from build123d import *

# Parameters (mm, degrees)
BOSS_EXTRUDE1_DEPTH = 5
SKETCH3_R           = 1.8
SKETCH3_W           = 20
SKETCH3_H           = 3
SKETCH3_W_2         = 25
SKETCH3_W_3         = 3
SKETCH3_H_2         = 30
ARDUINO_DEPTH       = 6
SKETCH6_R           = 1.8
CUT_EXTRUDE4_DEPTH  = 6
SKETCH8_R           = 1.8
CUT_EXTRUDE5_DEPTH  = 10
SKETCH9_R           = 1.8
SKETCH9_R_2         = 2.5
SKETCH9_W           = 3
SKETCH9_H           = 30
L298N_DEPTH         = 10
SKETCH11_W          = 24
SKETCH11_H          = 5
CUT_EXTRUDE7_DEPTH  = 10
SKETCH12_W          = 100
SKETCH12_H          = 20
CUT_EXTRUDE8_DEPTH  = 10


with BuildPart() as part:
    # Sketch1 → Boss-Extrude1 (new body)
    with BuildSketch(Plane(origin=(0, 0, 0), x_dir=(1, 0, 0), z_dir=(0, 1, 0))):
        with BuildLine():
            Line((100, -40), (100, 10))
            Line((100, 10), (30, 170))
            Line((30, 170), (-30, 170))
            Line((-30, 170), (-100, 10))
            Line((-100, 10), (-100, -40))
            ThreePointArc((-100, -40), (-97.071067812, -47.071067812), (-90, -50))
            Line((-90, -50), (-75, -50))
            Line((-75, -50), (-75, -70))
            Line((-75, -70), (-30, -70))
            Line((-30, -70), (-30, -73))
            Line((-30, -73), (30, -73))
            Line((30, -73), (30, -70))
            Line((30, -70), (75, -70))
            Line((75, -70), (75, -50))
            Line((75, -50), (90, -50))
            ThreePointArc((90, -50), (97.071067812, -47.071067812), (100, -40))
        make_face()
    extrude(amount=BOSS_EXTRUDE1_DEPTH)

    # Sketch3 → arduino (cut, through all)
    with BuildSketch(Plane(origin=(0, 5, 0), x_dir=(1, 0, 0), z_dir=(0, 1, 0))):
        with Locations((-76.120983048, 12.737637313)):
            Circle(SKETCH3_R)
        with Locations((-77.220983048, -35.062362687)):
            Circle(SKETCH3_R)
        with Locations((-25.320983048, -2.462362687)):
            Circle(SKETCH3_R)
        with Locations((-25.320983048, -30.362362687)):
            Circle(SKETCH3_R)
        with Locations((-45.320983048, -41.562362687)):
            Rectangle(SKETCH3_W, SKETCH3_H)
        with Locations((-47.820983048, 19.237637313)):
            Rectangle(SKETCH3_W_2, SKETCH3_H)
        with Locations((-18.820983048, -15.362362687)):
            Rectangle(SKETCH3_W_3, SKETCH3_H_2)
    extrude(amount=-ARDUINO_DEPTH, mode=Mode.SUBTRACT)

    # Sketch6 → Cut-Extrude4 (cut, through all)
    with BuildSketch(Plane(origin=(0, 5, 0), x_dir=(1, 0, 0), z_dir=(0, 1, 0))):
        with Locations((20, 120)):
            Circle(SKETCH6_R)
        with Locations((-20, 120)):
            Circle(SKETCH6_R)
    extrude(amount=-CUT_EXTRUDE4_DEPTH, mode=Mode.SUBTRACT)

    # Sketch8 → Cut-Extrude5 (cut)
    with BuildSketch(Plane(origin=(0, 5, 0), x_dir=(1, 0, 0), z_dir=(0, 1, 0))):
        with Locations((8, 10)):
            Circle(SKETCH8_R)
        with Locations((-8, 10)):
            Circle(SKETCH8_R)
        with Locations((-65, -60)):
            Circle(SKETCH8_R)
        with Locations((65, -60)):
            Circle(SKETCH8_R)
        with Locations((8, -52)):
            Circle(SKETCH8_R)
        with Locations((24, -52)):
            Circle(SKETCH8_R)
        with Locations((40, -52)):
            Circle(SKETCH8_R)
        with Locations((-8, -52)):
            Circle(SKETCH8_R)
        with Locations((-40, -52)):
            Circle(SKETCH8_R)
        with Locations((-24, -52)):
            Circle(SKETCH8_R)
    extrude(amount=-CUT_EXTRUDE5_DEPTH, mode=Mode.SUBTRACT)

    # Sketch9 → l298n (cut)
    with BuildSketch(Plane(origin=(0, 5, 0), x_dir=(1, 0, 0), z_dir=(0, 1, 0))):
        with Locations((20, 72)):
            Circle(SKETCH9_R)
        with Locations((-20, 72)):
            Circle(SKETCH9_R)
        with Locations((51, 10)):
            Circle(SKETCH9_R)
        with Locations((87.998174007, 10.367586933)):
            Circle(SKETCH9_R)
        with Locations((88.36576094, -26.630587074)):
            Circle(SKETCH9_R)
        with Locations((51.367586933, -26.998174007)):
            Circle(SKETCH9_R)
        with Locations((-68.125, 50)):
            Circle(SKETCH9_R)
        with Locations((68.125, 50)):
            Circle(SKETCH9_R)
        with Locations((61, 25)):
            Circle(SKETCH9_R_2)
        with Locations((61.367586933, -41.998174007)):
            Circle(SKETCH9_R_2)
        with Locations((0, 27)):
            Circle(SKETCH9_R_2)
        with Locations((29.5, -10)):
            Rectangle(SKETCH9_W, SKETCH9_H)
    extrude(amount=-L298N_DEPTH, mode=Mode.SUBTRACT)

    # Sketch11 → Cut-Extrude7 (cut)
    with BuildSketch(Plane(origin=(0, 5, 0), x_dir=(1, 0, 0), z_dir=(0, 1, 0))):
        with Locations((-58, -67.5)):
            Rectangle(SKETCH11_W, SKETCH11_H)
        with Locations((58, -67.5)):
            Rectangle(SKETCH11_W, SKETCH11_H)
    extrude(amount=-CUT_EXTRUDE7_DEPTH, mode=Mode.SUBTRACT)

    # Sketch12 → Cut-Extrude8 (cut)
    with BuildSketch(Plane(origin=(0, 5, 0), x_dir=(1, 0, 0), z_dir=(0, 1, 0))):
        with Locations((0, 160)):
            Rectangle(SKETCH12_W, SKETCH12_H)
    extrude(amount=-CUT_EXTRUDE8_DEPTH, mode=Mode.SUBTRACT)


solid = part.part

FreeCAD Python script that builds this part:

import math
import FreeCAD as App
import Part
import Sketcher

V = App.Vector
Q = App.Units.Quantity

doc = App.newDocument("Part")
params = doc.addObject("Spreadsheet::Sheet", "Params")
for row, (alias, value) in enumerate([
    ("sketch1_radius", "10 mm"),
    ("sketch1_width", "60 mm"),
    ("sketch1_width2", "15 mm"),
    ("sketch1_width3", "45 mm"),
    ("sketch1_height", "50 mm"),
    ("pad1_length", "5 mm"),
    ("sketch2_diameter", "3.6 mm"),
    ("sketch2_width", "20 mm"),
    ("sketch2_width2", "25 mm"),
    ("sketch2_width3", "3 mm"),
    ("sketch2_height", "30 mm"),
    ("sketch3_diameter", "3.6 mm"),
    ("sketch4_diameter", "3.6 mm"),
    ("pocket3_length", "10 mm"),
    ("sketch5_diameter", "5 mm"),
    ("sketch5_diameter2", "3.6 mm"),
    ("sketch5_width", "3 mm"),
    ("sketch5_height", "30 mm"),
    ("pocket4_length", "10 mm"),
    ("sketch6_width", "24 mm"),
    ("sketch6_height", "5 mm"),
    ("pocket5_length", "10 mm"),
    ("sketch7_width", "100 mm"),
    ("sketch7_height", "20 mm"),
    ("pocket6_length", "10 mm"),
], start=1):
    params.set(f"A{row}", alias)
    params.set(f"B{row}", "=" + value)
    params.setAlias(f"B{row}", alias)

body = doc.addObject("PartDesign::Body", "Body")

sketch1 = body.newObject("Sketcher::SketchObject", "Sketch")
sketch1.AttachmentSupport = (doc.getObject("XZ_Plane"), [""])
sketch1.MapMode = "FlatFace"
sketch1.addGeometry([
    Part.LineSegment(V(100, 40, 0), V(100, -10, 0)),
    Part.LineSegment(V(100, -10, 0), V(30, -170, 0)),
    Part.LineSegment(V(30, -170, 0), V(-30, -170, 0)),
    Part.LineSegment(V(-30, -170, 0), V(-100, -10, 0)),
    Part.LineSegment(V(-100, -10, 0), V(-100, 40, 0)),
    Part.ArcOfCircle(Part.Circle(V(-90, 40, 0), V(0, 0, 1), 10), math.radians(90), math.radians(180)),
    Part.LineSegment(V(-90, 50, 0), V(-75, 50, 0)),
    Part.LineSegment(V(-75, 50, 0), V(-75, 70, 0)),
    Part.LineSegment(V(-75, 70, 0), V(-30, 70, 0)),
    Part.LineSegment(V(-30, 70, 0), V(-30, 73, 0)),
    Part.LineSegment(V(-30, 73, 0), V(30, 73, 0)),
    Part.LineSegment(V(30, 73, 0), V(30, 70, 0)),
    Part.LineSegment(V(30, 70, 0), V(75, 70, 0)),
    Part.LineSegment(V(75, 70, 0), V(75, 50, 0)),
    Part.LineSegment(V(75, 50, 0), V(90, 50, 0)),
    Part.ArcOfCircle(Part.Circle(V(90, 40, 0), V(0, 0, 1), 10), math.radians(0), math.radians(90)),
], False)
sketch1.addConstraint([
    Sketcher.Constraint("Coincident", 0, 2, 1, 1),
    Sketcher.Constraint("Coincident", 1, 2, 2, 1),
    Sketcher.Constraint("Coincident", 2, 2, 3, 1),
    Sketcher.Constraint("Coincident", 3, 2, 4, 1),
    Sketcher.Constraint("Tangent", 4, 2, 5, 2),
    Sketcher.Constraint("Tangent", 5, 1, 6, 1),
    Sketcher.Constraint("Coincident", 6, 2, 7, 1),
    Sketcher.Constraint("Coincident", 7, 2, 8, 1),
    Sketcher.Constraint("Coincident", 8, 2, 9, 1),
    Sketcher.Constraint("Coincident", 9, 2, 10, 1),
    Sketcher.Constraint("Coincident", 10, 2, 11, 1),
    Sketcher.Constraint("Coincident", 11, 2, 12, 1),
    Sketcher.Constraint("Coincident", 12, 2, 13, 1),
    Sketcher.Constraint("Coincident", 13, 2, 14, 1),
    Sketcher.Constraint("Tangent", 14, 2, 15, 2),
    Sketcher.Constraint("Tangent", 15, 1, 0, 1),
    Sketcher.Constraint("Vertical", 0),
    Sketcher.Constraint("Horizontal", 2),
    Sketcher.Constraint("Vertical", 4),
    Sketcher.Constraint("Horizontal", 6),
    Sketcher.Constraint("Vertical", 7),
    Sketcher.Constraint("Horizontal", 8),
    Sketcher.Constraint("Vertical", 9),
    Sketcher.Constraint("Horizontal", 10),
    Sketcher.Constraint("Vertical", 11),
    Sketcher.Constraint("Horizontal", 12),
    Sketcher.Constraint("Vertical", 13),
    Sketcher.Constraint("Horizontal", 14),
    Sketcher.Constraint("Equal", 5, 15),
    Sketcher.Constraint("Symmetric", 5, 3, 15, 3, -2),
    Sketcher.Constraint("Symmetric", 8, 2, 11, 2, -2),
    Sketcher.Constraint("Horizontal", 0, 2, 3, 2),
    Sketcher.Constraint("Vertical", 2, 2, 8, 2),
    Sketcher.Constraint("Vertical", 1, 2, 10, 2),
    Sketcher.Constraint("Equal", 8, 12),
    Sketcher.Constraint("Radius", 5, Q("10 mm")),
    Sketcher.Constraint("DistanceX", 2, 2, 2, 1, Q("60 mm")),
    Sketcher.Constraint("DistanceX", 6, 1, 6, 2, Q("15 mm")),
    Sketcher.Constraint("DistanceX", 8, 1, 8, 2, Q("45 mm")),
    Sketcher.Constraint("DistanceY", 0, 2, 0, 1, Q("50 mm")),
    Sketcher.Constraint("DistanceY", 7, 1, 7, 2, Q("20 mm")),
    Sketcher.Constraint("DistanceY", 9, 1, 9, 2, Q("3 mm")),
    Sketcher.Constraint("DistanceY", -1, 1, 5, 3, Q("40 mm")),
    Sketcher.Constraint("DistanceY", 1, 2, -1, 1, Q("170 mm")),
])
sketch1.setExpression("Constraints[35]", "Params.sketch1_radius")
sketch1.setExpression("Constraints[36]", "Params.sketch1_width")
sketch1.setExpression("Constraints[37]", "Params.sketch1_width2")
sketch1.setExpression("Constraints[38]", "Params.sketch1_width3")
sketch1.setExpression("Constraints[39]", "Params.sketch1_height")
pad1 = body.newObject("PartDesign::Pad", "Pad")
pad1.Profile = sketch1
pad1.setExpression("Length", "Params.pad1_length")
pad1.Reversed = True

sketch2 = body.newObject("Sketcher::SketchObject", "Sketch001")
sketch2.AttachmentSupport = (doc.getObject("XZ_Plane"), [""])
sketch2.MapMode = "FlatFace"
sketch2.AttachmentOffset = App.Placement(V(0, 0, -5), App.Rotation())
sketch2.addGeometry([
    Part.Circle(V(-76.1, -12.7, 0), V(0, 0, 1), 1.8),
    Part.Circle(V(-77.2, 35.1, 0), V(0, 0, 1), 1.8),
    Part.Circle(V(-25.3, 2.5, 0), V(0, 0, 1), 1.8),
    Part.Circle(V(-25.3, 30.4, 0), V(0, 0, 1), 1.8),
    Part.LineSegment(V(-55.3, 40.1, 0), V(-55.3, 43.1, 0)),
    Part.LineSegment(V(-55.3, 43.1, 0), V(-35.3, 43.1, 0)),
    Part.LineSegment(V(-35.3, 43.1, 0), V(-35.3, 40.1, 0)),
    Part.LineSegment(V(-35.3, 40.1, 0), V(-55.3, 40.1, 0)),
    Part.LineSegment(V(-60.3, -20.7, 0), V(-60.3, -17.7, 0)),
    Part.LineSegment(V(-60.3, -17.7, 0), V(-35.3, -17.7, 0)),
    Part.LineSegment(V(-35.3, -17.7, 0), V(-35.3, -20.7, 0)),
    Part.LineSegment(V(-35.3, -20.7, 0), V(-60.3, -20.7, 0)),
    Part.LineSegment(V(-20.3, 0.4, 0), V(-20.3, 30.4, 0)),
    Part.LineSegment(V(-20.3, 30.4, 0), V(-17.3, 30.4, 0)),
    Part.LineSegment(V(-17.3, 30.4, 0), V(-17.3, 0.4, 0)),
    Part.LineSegment(V(-17.3, 0.4, 0), V(-20.3, 0.4, 0)),
], False)
sketch2.addConstraint([
    Sketcher.Constraint("Coincident", 4, 2, 5, 1),
    Sketcher.Constraint("Coincident", 5, 2, 6, 1),
    Sketcher.Constraint("Coincident", 6, 2, 7, 1),
    Sketcher.Constraint("Coincident", 7, 2, 4, 1),
    Sketcher.Constraint("Coincident", 8, 2, 9, 1),
    Sketcher.Constraint("Coincident", 9, 2, 10, 1),
    Sketcher.Constraint("Coincident", 10, 2, 11, 1),
    Sketcher.Constraint("Coincident", 11, 2, 8, 1),
    Sketcher.Constraint("Coincident", 12, 2, 13, 1),
    Sketcher.Constraint("Coincident", 13, 2, 14, 1),
    Sketcher.Constraint("Coincident", 14, 2, 15, 1),
    Sketcher.Constraint("Coincident", 15, 2, 12, 1),
    Sketcher.Constraint("Vertical", 4),
    Sketcher.Constraint("Horizontal", 5),
    Sketcher.Constraint("Vertical", 6),
    Sketcher.Constraint("Horizontal", 7),
    Sketcher.Constraint("Vertical", 8),
    Sketcher.Constraint("Horizontal", 9),
    Sketcher.Constraint("Vertical", 10),
    Sketcher.Constraint("Horizontal", 11),
    Sketcher.Constraint("Vertical", 12),
    Sketcher.Constraint("Horizontal", 13),
    Sketcher.Constraint("Vertical", 14),
    Sketcher.Constraint("Horizontal", 15),
    Sketcher.Constraint("Equal", 0, 1),
    Sketcher.Constraint("Equal", 1, 2),
    Sketcher.Constraint("Equal", 2, 3),
    Sketcher.Constraint("Horizontal", 3, 3, 12, 2),
    Sketcher.Constraint("Vertical", 2, 3, 3, 3),
    Sketcher.Constraint("Vertical", 6, 2, 9, 2),
    Sketcher.Constraint("Equal", 15, 4),
    Sketcher.Constraint("Equal", 6, 8),
    Sketcher.Constraint("Diameter", 0, Q("3.6 mm")),
    Sketcher.Constraint("DistanceX", 5, 1, 5, 2, Q("20 mm")),
    Sketcher.Constraint("DistanceX", 9, 1, 9, 2, Q("25 mm")),
    Sketcher.Constraint("DistanceX", 13, 1, 13, 2, Q("3 mm")),
    Sketcher.Constraint("DistanceY", 12, 1, 12, 2, Q("30 mm")),
    Sketcher.Constraint("DistanceY", 1, 3, 4, 2, Q("8 mm")),
    Sketcher.Constraint("DistanceX", 4, 2, 3, 3, Q("30 mm")),
    Sketcher.Constraint("DistanceY", 8, 2, 0, 3, Q("5 mm")),
    Sketcher.Constraint("DistanceX", 3, 3, 12, 2, Q("5 mm")),
    Sketcher.Constraint("DistanceX", 1, 3, 0, 3, Q("1.1 mm")),
    Sketcher.Constraint("DistanceY", 0, 3, 1, 3, Q("47.8 mm")),
    Sketcher.Constraint("DistanceX", 0, 3, 2, 3, Q("50.8 mm")),
    Sketcher.Constraint("DistanceY", 0, 3, 2, 3, Q("15.2 mm")),
    Sketcher.Constraint("DistanceY", 2, 3, 3, 3, Q("27.9 mm")),
    Sketcher.Constraint("DistanceX", 0, 3, -1, 1, Q("76.120983 mm")),
    Sketcher.Constraint("DistanceY", 0, 3, -1, 1, Q("12.737637 mm")),
])
sketch2.setExpression("Constraints[32]", "Params.sketch2_diameter")
sketch2.setExpression("Constraints[33]", "Params.sketch2_width")
sketch2.setExpression("Constraints[34]", "Params.sketch2_width2")
sketch2.setExpression("Constraints[35]", "Params.sketch2_width3")
sketch2.setExpression("Constraints[36]", "Params.sketch2_height")
pocket1 = body.newObject("PartDesign::Pocket", "Pocket")
pocket1.Profile = sketch2
pocket1.Type = "ThroughAll"
pocket1.Reversed = True

sketch3 = body.newObject("Sketcher::SketchObject", "Sketch002")
sketch3.AttachmentSupport = (doc.getObject("XZ_Plane"), [""])
sketch3.MapMode = "FlatFace"
sketch3.AttachmentOffset = App.Placement(V(0, 0, -5), App.Rotation())
sketch3.addGeometry([
    Part.Circle(V(20, -120, 0), V(0, 0, 1), 1.8),
    Part.Circle(V(-20, -120, 0), V(0, 0, 1), 1.8),
], False)
sketch3.addConstraint([
    Sketcher.Constraint("Equal", 0, 1),
    Sketcher.Constraint("Symmetric", 0, 3, 1, 3, -2),
    Sketcher.Constraint("Diameter", 0, Q("3.6 mm")),
    Sketcher.Constraint("DistanceX", -1, 1, 0, 3, Q("20 mm")),
    Sketcher.Constraint("DistanceY", 0, 3, -1, 1, Q("120 mm")),
])
sketch3.setExpression("Constraints[2]", "Params.sketch3_diameter")
pocket2 = body.newObject("PartDesign::Pocket", "Pocket001")
pocket2.Profile = sketch3
pocket2.Type = "ThroughAll"
pocket2.Reversed = True

sketch4 = body.newObject("Sketcher::SketchObject", "Sketch003")
sketch4.AttachmentSupport = (doc.getObject("XZ_Plane"), [""])
sketch4.MapMode = "FlatFace"
sketch4.AttachmentOffset = App.Placement(V(0, 0, -5), App.Rotation())
sketch4.addGeometry([
    Part.Circle(V(8, -10, 0), V(0, 0, 1), 1.8),
    Part.Circle(V(-8, -10, 0), V(0, 0, 1), 1.8),
    Part.Circle(V(-65, 60, 0), V(0, 0, 1), 1.8),
    Part.Circle(V(65, 60, 0), V(0, 0, 1), 1.8),
    Part.Circle(V(8, 52, 0), V(0, 0, 1), 1.8),
    Part.Circle(V(24, 52, 0), V(0, 0, 1), 1.8),
    Part.Circle(V(40, 52, 0), V(0, 0, 1), 1.8),
    Part.Circle(V(-8, 52, 0), V(0, 0, 1), 1.8),
    Part.Circle(V(-40, 52, 0), V(0, 0, 1), 1.8),
    Part.Circle(V(-24, 52, 0), V(0, 0, 1), 1.8),
], False)
sketch4.addConstraint([
    Sketcher.Constraint("Equal", 0, 1),
    Sketcher.Constraint("Equal", 1, 2),
    Sketcher.Constraint("Equal", 2, 3),
    Sketcher.Constraint("Equal", 3, 4),
    Sketcher.Constraint("Equal", 4, 5),
    Sketcher.Constraint("Equal", 5, 6),
    Sketcher.Constraint("Equal", 6, 7),
    Sketcher.Constraint("Equal", 7, 8),
    Sketcher.Constraint("Equal", 8, 9),
    Sketcher.Constraint("Symmetric", 0, 3, 1, 3, -2),
    Sketcher.Constraint("Symmetric", 2, 3, 3, 3, -2),
    Sketcher.Constraint("Symmetric", 4, 3, 7, 3, -2),
    Sketcher.Constraint("Symmetric", 6, 3, 8, 3, -2),
    Sketcher.Constraint("Symmetric", 5, 3, 9, 3, -2),
    Sketcher.Constraint("Horizontal", 4, 3, 5, 3),
    Sketcher.Constraint("Horizontal", 5, 3, 6, 3),
    Sketcher.Constraint("Vertical", 0, 3, 4, 3),
    Sketcher.Constraint("Diameter", 0, Q("3.6 mm")),
    Sketcher.Constraint("DistanceX", -1, 1, 0, 3, Q("8 mm")),
    Sketcher.Constraint("DistanceY", 0, 3, -1, 1, Q("10 mm")),
    Sketcher.Constraint("DistanceX", 2, 3, -1, 1, Q("65 mm")),
    Sketcher.Constraint("DistanceY", -1, 1, 2, 3, Q("60 mm")),
    Sketcher.Constraint("DistanceY", -1, 1, 4, 3, Q("52 mm")),
    Sketcher.Constraint("DistanceX", -1, 1, 5, 3, Q("24 mm")),
    Sketcher.Constraint("DistanceX", -1, 1, 6, 3, Q("40 mm")),
])
sketch4.setExpression("Constraints[17]", "Params.sketch4_diameter")
pocket3 = body.newObject("PartDesign::Pocket", "Pocket002")
pocket3.Profile = sketch4
pocket3.setExpression("Length", "Params.pocket3_length")
pocket3.Reversed = True

sketch5 = body.newObject("Sketcher::SketchObject", "Sketch004")
sketch5.AttachmentSupport = (doc.getObject("XZ_Plane"), [""])
sketch5.MapMode = "FlatFace"
sketch5.AttachmentOffset = App.Placement(V(0, 0, -5), App.Rotation())
sketch5.addGeometry([
    Part.Circle(V(20, -72, 0), V(0, 0, 1), 1.8),
    Part.Circle(V(-20, -72, 0), V(0, 0, 1), 1.8),
    Part.Circle(V(51, -10, 0), V(0, 0, 1), 1.8),
    Part.Circle(V(88, -10.4, 0), V(0, 0, 1), 1.8),
    Part.Circle(V(88.4, 26.6, 0), V(0, 0, 1), 1.8),
    Part.Circle(V(51.4, 27, 0), V(0, 0, 1), 1.8),
    Part.Circle(V(-68.1, -50, 0), V(0, 0, 1), 1.8),
    Part.Circle(V(68.1, -50, 0), V(0, 0, 1), 1.8),
    Part.Circle(V(61, -25, 0), V(0, 0, 1), 2.5),
    Part.Circle(V(61.4, 42, 0), V(0, 0, 1), 2.5),
    Part.Circle(V(0, -27, 0), V(0, 0, 1), 2.5),
    Part.LineSegment(V(28, -5, 0), V(28, 25, 0)),
    Part.LineSegment(V(28, 25, 0), V(31, 25, 0)),
    Part.LineSegment(V(31, 25, 0), V(31, -5, 0)),
    Part.LineSegment(V(31, -5, 0), V(28, -5, 0)),
], False)
sketch5.addConstraint([
    Sketcher.Constraint("Coincident", 11, 2, 12, 1),
    Sketcher.Constraint("Coincident", 12, 2, 13, 1),
    Sketcher.Constraint("Coincident", 13, 2, 14, 1),
    Sketcher.Constraint("Coincident", 14, 2, 11, 1),
    Sketcher.Constraint("Vertical", 11),
    Sketcher.Constraint("Horizontal", 12),
    Sketcher.Constraint("Vertical", 13),
    Sketcher.Constraint("Horizontal", 14),
    Sketcher.Constraint("Equal", 0, 1),
    Sketcher.Constraint("Equal", 1, 2),
    Sketcher.Constraint("Equal", 2, 3),
    Sketcher.Constraint("Equal", 3, 4),
    Sketcher.Constraint("Equal", 4, 5),
    Sketcher.Constraint("Equal", 5, 6),
    Sketcher.Constraint("Equal", 6, 7),
    Sketcher.Constraint("Equal", 8, 9),
    Sketcher.Constraint("Equal", 9, 10),
    Sketcher.Constraint("Symmetric", 0, 3, 1, 3, -2),
    Sketcher.Constraint("Symmetric", 6, 3, 7, 3, -2),
    Sketcher.Constraint("PointOnObject", 10, 3, -2),
    Sketcher.Constraint("Diameter", 8, Q("5 mm")),
    Sketcher.Constraint("Diameter", 0, Q("3.6 mm")),
    Sketcher.Constraint("DistanceX", 12, 1, 12, 2, Q("3 mm")),
    Sketcher.Constraint("DistanceY", 11, 1, 11, 2, Q("30 mm")),
    Sketcher.Constraint("DistanceX", -1, 1, 0, 3, Q("20 mm")),
    Sketcher.Constraint("DistanceY", 0, 3, -1, 1, Q("72 mm")),
    Sketcher.Constraint("DistanceX", -1, 1, 2, 3, Q("51 mm")),
    Sketcher.Constraint("DistanceY", 2, 3, -1, 1, Q("10 mm")),
    Sketcher.Constraint("DistanceY", 6, 3, -1, 1, Q("50 mm")),
    Sketcher.Constraint("DistanceX", -1, 1, 8, 3, Q("61 mm")),
    Sketcher.Constraint("DistanceY", 8, 3, -1, 1, Q("25 mm")),
    Sketcher.Constraint("DistanceY", 10, 3, -1, 1, Q("27 mm")),
    Sketcher.Constraint("DistanceX", -1, 1, 11, 2, Q("28 mm")),
    Sketcher.Constraint("DistanceY", -1, 1, 11, 2, Q("25 mm")),
    Sketcher.Constraint("DistanceX", 5, 3, 9, 3, Q("10 mm")),
    Sketcher.Constraint("DistanceY", 5, 3, 9, 3, Q("15 mm")),
    Sketcher.Constraint("DistanceX", 6, 3, -1, 1, Q("68.125 mm")),
    Sketcher.Constraint("DistanceX", -1, 1, 4, 3, Q("88.365761 mm")),
    Sketcher.Constraint("DistanceY", 3, 3, 5, 3, Q("37.365761 mm")),
    Sketcher.Constraint("DistanceX", -1, 1, 3, 3, Q("87.998174 mm")),
    Sketcher.Constraint("DistanceY", 3, 3, -1, 1, Q("10.367587 mm")),
    Sketcher.Constraint("DistanceY", -1, 1, 4, 3, Q("26.630587 mm")),
    Sketcher.Constraint("DistanceX", -1, 1, 5, 3, Q("51.367587 mm")),
])
sketch5.setExpression("Constraints[20]", "Params.sketch5_diameter")
sketch5.setExpression("Constraints[21]", "Params.sketch5_diameter2")
sketch5.setExpression("Constraints[22]", "Params.sketch5_width")
sketch5.setExpression("Constraints[23]", "Params.sketch5_height")
pocket4 = body.newObject("PartDesign::Pocket", "Pocket003")
pocket4.Profile = sketch5
pocket4.setExpression("Length", "Params.pocket4_length")
pocket4.Reversed = True

sketch6 = body.newObject("Sketcher::SketchObject", "Sketch005")
sketch6.AttachmentSupport = (doc.getObject("XZ_Plane"), [""])
sketch6.MapMode = "FlatFace"
sketch6.AttachmentOffset = App.Placement(V(0, 0, -5), App.Rotation())
sketch6.addGeometry([
    Part.LineSegment(V(-70, 65, 0), V(-70, 70, 0)),
    Part.LineSegment(V(-70, 70, 0), V(-46, 70, 0)),
    Part.LineSegment(V(-46, 70, 0), V(-46, 65, 0)),
    Part.LineSegment(V(-46, 65, 0), V(-70, 65, 0)),
    Part.LineSegment(V(46, 65, 0), V(46, 70, 0)),
    Part.LineSegment(V(46, 70, 0), V(70, 70, 0)),
    Part.LineSegment(V(70, 70, 0), V(70, 65, 0)),
    Part.LineSegment(V(70, 65, 0), V(46, 65, 0)),
], False)
sketch6.addConstraint([
    Sketcher.Constraint("Coincident", 0, 2, 1, 1),
    Sketcher.Constraint("Coincident", 1, 2, 2, 1),
    Sketcher.Constraint("Coincident", 2, 2, 3, 1),
    Sketcher.Constraint("Coincident", 3, 2, 0, 1),
    Sketcher.Constraint("Coincident", 4, 2, 5, 1),
    Sketcher.Constraint("Coincident", 5, 2, 6, 1),
    Sketcher.Constraint("Coincident", 6, 2, 7, 1),
    Sketcher.Constraint("Coincident", 7, 2, 4, 1),
    Sketcher.Constraint("Vertical", 0),
    Sketcher.Constraint("Horizontal", 1),
    Sketcher.Constraint("Vertical", 2),
    Sketcher.Constraint("Horizontal", 3),
    Sketcher.Constraint("Vertical", 4),
    Sketcher.Constraint("Horizontal", 5),
    Sketcher.Constraint("Vertical", 6),
    Sketcher.Constraint("Horizontal", 7),
    Sketcher.Constraint("Symmetric", 1, 2, 4, 2, -2),
    Sketcher.Constraint("Symmetric", 3, 2, 6, 2, -2),
    Sketcher.Constraint("DistanceX", 1, 1, 1, 2, Q("24 mm")),
    Sketcher.Constraint("DistanceY", 0, 1, 0, 2, Q("5 mm")),
    Sketcher.Constraint("DistanceX", 0, 2, -1, 1, Q("70 mm")),
    Sketcher.Constraint("DistanceY", -1, 1, 0, 2, Q("70 mm")),
])
sketch6.setExpression("Constraints[18]", "Params.sketch6_width")
sketch6.setExpression("Constraints[19]", "Params.sketch6_height")
pocket5 = body.newObject("PartDesign::Pocket", "Pocket004")
pocket5.Profile = sketch6
pocket5.setExpression("Length", "Params.pocket5_length")
pocket5.Reversed = True

sketch7 = body.newObject("Sketcher::SketchObject", "Sketch006")
sketch7.AttachmentSupport = (doc.getObject("XZ_Plane"), [""])
sketch7.MapMode = "FlatFace"
sketch7.AttachmentOffset = App.Placement(V(0, 0, -5), App.Rotation())
sketch7.addGeometry([
    Part.LineSegment(V(-50, -170, 0), V(-50, -150, 0)),
    Part.LineSegment(V(-50, -150, 0), V(50, -150, 0)),
    Part.LineSegment(V(50, -150, 0), V(50, -170, 0)),
    Part.LineSegment(V(50, -170, 0), V(-50, -170, 0)),
], False)
sketch7.addConstraint([
    Sketcher.Constraint("Coincident", 0, 2, 1, 1),
    Sketcher.Constraint("Coincident", 1, 2, 2, 1),
    Sketcher.Constraint("Coincident", 2, 2, 3, 1),
    Sketcher.Constraint("Coincident", 3, 2, 0, 1),
    Sketcher.Constraint("Vertical", 0),
    Sketcher.Constraint("Horizontal", 1),
    Sketcher.Constraint("Vertical", 2),
    Sketcher.Constraint("Horizontal", 3),
    Sketcher.Constraint("DistanceX", 1, 1, 1, 2, Q("100 mm")),
    Sketcher.Constraint("DistanceY", 0, 1, 0, 2, Q("20 mm")),
    Sketcher.Constraint("DistanceX", 0, 2, -1, 1, Q("50 mm")),
    Sketcher.Constraint("DistanceY", 0, 2, -1, 1, Q("150 mm")),
])
sketch7.setExpression("Constraints[8]", "Params.sketch7_width")
sketch7.setExpression("Constraints[9]", "Params.sketch7_height")
pocket6 = body.newObject("PartDesign::Pocket", "Pocket005")
pocket6.Profile = sketch7
pocket6.setExpression("Length", "Params.pocket6_length")
pocket6.Reversed = True

doc.recompute()
